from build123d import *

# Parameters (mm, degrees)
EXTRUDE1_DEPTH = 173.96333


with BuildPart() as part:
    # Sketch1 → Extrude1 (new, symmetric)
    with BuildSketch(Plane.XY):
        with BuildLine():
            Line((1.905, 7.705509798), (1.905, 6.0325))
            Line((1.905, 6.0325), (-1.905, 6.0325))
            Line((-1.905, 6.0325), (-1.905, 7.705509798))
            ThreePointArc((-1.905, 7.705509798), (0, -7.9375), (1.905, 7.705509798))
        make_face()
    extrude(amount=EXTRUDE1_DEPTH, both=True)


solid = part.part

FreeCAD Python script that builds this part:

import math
import FreeCAD as App
import Part
import Sketcher

V = App.Vector
Q = App.Units.Quantity

doc = App.newDocument("Part")
params = doc.addObject("Spreadsheet::Sheet", "Params")
for row, (alias, value) in enumerate([
    ("sketch1_radius", "0.3125 in"),
    ("sketch1_width", "0.15 in"),
    ("pad1_length", "13.6979 in"),
], start=1):
    params.set(f"A{row}", alias)
    params.set(f"B{row}", "=" + value)
    params.setAlias(f"B{row}", alias)

body = doc.addObject("PartDesign::Body", "Body")

# Sketch on XY plane
sketch1 = body.newObject("Sketcher::SketchObject", "Sketch")
sketch1.AttachmentSupport = (doc.getObject("XY_Plane"), [""])
sketch1.MapMode = "FlatFace"
sketch1.addGeometry(Part.LineSegment(V(1.9, 7.7, 0), V(1.9, 6, 0)), False)
sketch1.addGeometry(Part.LineSegment(V(1.9, 6, 0), V(-1.9, 6, 0)), False)
sketch1.addGeometry(Part.LineSegment(V(-1.9, 6, 0), V(-1.9, 7.7, 0)), False)
sketch1.addGeometry(Part.ArcOfCircle(Part.Circle(V(0, 0, 0), V(0, 0, 1), 7.9), math.radians(104), math.radians(436)), False)
sketch1.addConstraint(Sketcher.Constraint("Coincident", 0, 2, 1, 1))
sketch1.addConstraint(Sketcher.Constraint("Coincident", 1, 2, 2, 1))
sketch1.addConstraint(Sketcher.Constraint("Coincident", 2, 2, 3, 1))
sketch1.addConstraint(Sketcher.Constraint("Coincident", 3, 2, 0, 1))
sketch1.addConstraint(Sketcher.Constraint("Vertical", 0))
sketch1.addConstraint(Sketcher.Constraint("Horizontal", 1))
sketch1.addConstraint(Sketcher.Constraint("Vertical", 2))
sketch1.addConstraint(Sketcher.Constraint("Coincident", 3, 3, -1, 1))
sketch1.addConstraint(Sketcher.Constraint("Horizontal", 2, 2, 3, 2))
sketch1.addConstraint(Sketcher.Constraint("Radius", 3, Q("0.3125 in")))
sketch1.addConstraint(Sketcher.Constraint("DistanceX", 1, 2, 1, 1, Q("0.15 in")))
sketch1.addConstraint(Sketcher.Constraint("DistanceY", -1, 1, 0, 2, Q("0.2375 in")))
sketch1.setExpression("Constraints[9]", "Params.sketch1_radius")
sketch1.setExpression("Constraints[10]", "Params.sketch1_width")
pad1 = body.newObject("PartDesign::Pad", "Pad")
pad1.Profile = sketch1
pad1.setExpression("Length", "Params.pad1_length")
pad1.Midplane = True

doc.recompute()
